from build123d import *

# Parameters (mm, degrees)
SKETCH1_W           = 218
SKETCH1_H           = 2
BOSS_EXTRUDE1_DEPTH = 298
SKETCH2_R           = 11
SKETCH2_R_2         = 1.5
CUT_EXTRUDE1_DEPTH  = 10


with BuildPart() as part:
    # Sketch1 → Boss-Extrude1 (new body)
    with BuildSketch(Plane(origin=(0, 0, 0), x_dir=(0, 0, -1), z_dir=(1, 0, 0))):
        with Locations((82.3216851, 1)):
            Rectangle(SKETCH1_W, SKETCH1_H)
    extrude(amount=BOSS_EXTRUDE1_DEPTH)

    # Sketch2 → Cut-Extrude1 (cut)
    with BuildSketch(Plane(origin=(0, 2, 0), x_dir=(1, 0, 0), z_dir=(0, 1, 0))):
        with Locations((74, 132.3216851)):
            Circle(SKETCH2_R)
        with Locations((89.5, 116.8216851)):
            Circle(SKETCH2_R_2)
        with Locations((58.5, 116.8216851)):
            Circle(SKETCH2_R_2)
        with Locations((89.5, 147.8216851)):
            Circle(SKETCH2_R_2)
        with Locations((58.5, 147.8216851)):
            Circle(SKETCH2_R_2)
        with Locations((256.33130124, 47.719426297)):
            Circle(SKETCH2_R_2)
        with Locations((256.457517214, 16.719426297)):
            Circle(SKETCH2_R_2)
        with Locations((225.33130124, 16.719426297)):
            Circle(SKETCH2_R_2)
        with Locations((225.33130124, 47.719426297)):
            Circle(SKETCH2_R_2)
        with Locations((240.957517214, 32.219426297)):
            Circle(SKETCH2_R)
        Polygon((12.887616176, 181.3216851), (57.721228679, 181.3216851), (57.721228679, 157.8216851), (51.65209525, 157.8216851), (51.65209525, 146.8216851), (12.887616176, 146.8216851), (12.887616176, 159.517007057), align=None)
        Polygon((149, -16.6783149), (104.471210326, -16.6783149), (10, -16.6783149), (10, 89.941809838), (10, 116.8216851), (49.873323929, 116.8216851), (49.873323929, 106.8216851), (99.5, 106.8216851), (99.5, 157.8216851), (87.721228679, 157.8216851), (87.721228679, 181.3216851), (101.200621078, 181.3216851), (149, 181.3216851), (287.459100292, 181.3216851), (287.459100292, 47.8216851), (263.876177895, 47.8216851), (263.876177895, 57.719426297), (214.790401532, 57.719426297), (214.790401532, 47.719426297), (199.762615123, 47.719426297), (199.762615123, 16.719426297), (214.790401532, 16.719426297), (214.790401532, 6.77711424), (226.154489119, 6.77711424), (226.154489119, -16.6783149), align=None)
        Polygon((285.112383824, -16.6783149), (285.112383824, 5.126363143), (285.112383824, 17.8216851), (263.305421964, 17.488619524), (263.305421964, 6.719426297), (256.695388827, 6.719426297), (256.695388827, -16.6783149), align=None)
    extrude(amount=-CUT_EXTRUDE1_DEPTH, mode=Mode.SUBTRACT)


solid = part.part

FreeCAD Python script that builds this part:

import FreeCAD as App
import Part
import Sketcher

V = App.Vector


def add_polygon(sketch, points):
    """Adds a closed chain of lines whose ends are joined by coincident constraints."""
    first, n = sketch.GeometryCount, len(points)
    for a, b in zip(points, points[1:] + points[:1]):
        sketch.addGeometry(Part.LineSegment(App.Vector(*a, 0), App.Vector(*b, 0)), False)
    for i in range(n):
        sketch.addConstraint(Sketcher.Constraint("Coincident", first + i, 2, first + (i + 1) % n, 1))

doc = App.newDocument("Part")
body = doc.addObject("PartDesign::Body", "Body")

# Sketch on YZ plane
sketch1 = doc.addObject("Sketcher::SketchObject", "Sketch")
body.addObject(sketch1)
sketch1.AttachmentSupport = (doc.YZ_Plane, [""])
sketch1.MapMode = "FlatFace"
add_polygon(sketch1, [(2, 26.7), (0, 26.7), (0, -191.3), (2, -191.3)])  # lines 0-3
sketch1.addConstraint([
    Sketcher.Constraint("Horizontal", 0),
    Sketcher.Constraint("Vertical", 1),
    Sketcher.Constraint("Horizontal", 2),
    Sketcher.Constraint("Vertical", 3),
    Sketcher.Constraint("PointOnObject", 0, 2, -2),
    Sketcher.Constraint("DistanceX", 0, 2, 0, 1, 2.0),
    Sketcher.Constraint("DistanceY", 1, 2, 1, 1, 218.0),
    Sketcher.Constraint("DistanceY", -1, 1, 0, 2, 26.678315),
])
pad1 = doc.addObject("PartDesign::Pad", "Pad")
body.addObject(pad1)
pad1.Profile = sketch1
pad1.Length = 298

# Sketch on XZ plane
sketch2 = doc.addObject("Sketcher::SketchObject", "Sketch001")
body.addObject(sketch2)
sketch2.AttachmentSupport = (doc.XZ_Plane, [""])
sketch2.MapMode = "FlatFace"
sketch2.AttachmentOffset = App.Placement(V(0, 0, -2), App.Rotation())
sketch2.addGeometry(Part.Circle(V(74, -132.3, 0), V(0, 0, 1), 11), False)  # 0
sketch2.addGeometry(Part.Circle(V(89.5, -116.8, 0), V(0, 0, 1), 1.5), False)  # 1
sketch2.addGeometry(Part.Circle(V(58.5, -116.8, 0), V(0, 0, 1), 1.5), False)  # 2
sketch2.addGeometry(Part.Circle(V(89.5, -147.8, 0), V(0, 0, 1), 1.5), False)  # 3
sketch2.addGeometry(Part.Circle(V(58.5, -147.8, 0), V(0, 0, 1), 1.5), False)  # 4
sketch2.addGeometry(Part.Circle(V(256.3, -47.7, 0), V(0, 0, 1), 1.5), False)  # 5
sketch2.addGeometry(Part.Circle(V(256.5, -16.7, 0), V(0, 0, 1), 1.5), False)  # 6
sketch2.addGeometry(Part.Circle(V(225.3, -16.7, 0), V(0, 0, 1), 1.5), False)  # 7
sketch2.addGeometry(Part.Circle(V(225.3, -47.7, 0), V(0, 0, 1), 1.5), False)  # 8
sketch2.addGeometry(Part.Circle(V(241, -32.2, 0), V(0, 0, 1), 11), False)  # 9
add_polygon(sketch2, [(57.7, -181.3), (12.9, -181.3), (12.9, -146.8), (51.7, -146.8), (51.7, -157.8), (57.7, -157.8)])  # lines 10-15
add_polygon(sketch2, [(10, 16.7), (226.2, 16.7), (226.2, -6.8), (214.8, -6.8), (214.8, -16.7), (199.8, -16.7), (199.8, -47.7), (214.8, -47.7), (214.8, -57.7), (263.9, -57.7), (263.9, -47.8), (287.5, -47.8), (287.5, -181.3), (87.7, -181.3), (87.7, -157.8), (99.5, -157.8), (99.5, -106.8), (49.9, -106.8), (49.9, -116.8), (10, -116.8)])  # lines 16-35
add_polygon(sketch2, [(285.1, 16.7), (285.1, -17.8), (263.3, -17.5), (263.3, -6.7), (256.7, -6.7), (256.7, 16.7)])  # lines 36-41
sketch2.addConstraint([
    Sketcher.Constraint("Horizontal", 10),
    Sketcher.Constraint("Vertical", 11),
    Sketcher.Constraint("Horizontal", 12),
    Sketcher.Constraint("Vertical", 13),
    Sketcher.Constraint("Horizontal", 14),
    Sketcher.Constraint("Vertical", 15),
    Sketcher.Constraint("Horizontal", 16),
    Sketcher.Constraint("Vertical", 17),
    Sketcher.Constraint("Horizontal", 18),
    Sketcher.Constraint("Vertical", 19),
    Sketcher.Constraint("Horizontal", 20),
    Sketcher.Constraint("Vertical", 21),
    Sketcher.Constraint("Horizontal", 22),
    Sketcher.Constraint("Vertical", 23),
    Sketcher.Constraint("Horizontal", 24),
    Sketcher.Constraint("Vertical", 25),
    Sketcher.Constraint("Horizontal", 26),
    Sketcher.Constraint("Vertical", 27),
    Sketcher.Constraint("Horizontal", 28),
    Sketcher.Constraint("Vertical", 29),
    Sketcher.Constraint("Horizontal", 30),
    Sketcher.Constraint("Vertical", 31),
    Sketcher.Constraint("Horizontal", 32),
    Sketcher.Constraint("Vertical", 33),
    Sketcher.Constraint("Horizontal", 34),
    Sketcher.Constraint("Vertical", 35),
    Sketcher.Constraint("Vertical", 36),
    Sketcher.Constraint("Vertical", 38),
    Sketcher.Constraint("Horizontal", 39),
    Sketcher.Constraint("Vertical", 40),
    Sketcher.Constraint("Horizontal", 41),
    Sketcher.Constraint("Equal", 1, 2),
    Sketcher.Constraint("Equal", 2, 3),
    Sketcher.Constraint("Equal", 3, 4),
    Sketcher.Constraint("Equal", 4, 5),
    Sketcher.Constraint("Equal", 5, 6),
    Sketcher.Constraint("Equal", 6, 7),
    Sketcher.Constraint("Equal", 7, 8),
    Sketcher.Constraint("Equal", 0, 9),
    Sketcher.Constraint("Horizontal", 1, 3, 2, 3),
    Sketcher.Constraint("Horizontal", 3, 3, 4, 3),
    Sketcher.Constraint("Horizontal", 6, 3, 7, 3),
    Sketcher.Constraint("Horizontal", 5, 3, 8, 3),
    Sketcher.Constraint("Horizontal", 7, 3, 19, 2),
    Sketcher.Constraint("Horizontal", 8, 3, 21, 2),
    Sketcher.Constraint("Horizontal", 15, 2, 27, 2),
    Sketcher.Constraint("Horizontal", 14, 2, 29, 2),
    Sketcher.Constraint("Horizontal", 2, 3, 33, 2),
    Sketcher.Constraint("Horizontal", 35, 2, 40, 2),
    Sketcher.Constraint("Vertical", 1, 3, 3, 3),
    Sketcher.Constraint("Vertical", 2, 3, 4, 3),
    Sketcher.Constraint("Vertical", 7, 3, 8, 3),
    Sketcher.Constraint("Vertical", 19, 2, 22, 2),
    Sketcher.Constraint("Equal", 23, 33),
    Sketcher.Constraint("Equal", 27, 35),
    Sketcher.Constraint("Equal", 11, 36),
    Sketcher.Constraint("Diameter", 0, 22.0),
    Sketcher.Constraint("Diameter", 1, 3.0),
    Sketcher.Constraint("DistanceY", 13, 2, 13, 1, 11.0),
    Sketcher.Constraint("DistanceY", 21, 2, 21, 1, 31.0),
    Sketcher.Constraint("DistanceY", 23, 2, 23, 1, 10.0),
    Sketcher.Constraint("DistanceY", 31, 1, 31, 2, 51.0),
    Sketcher.Constraint("DistanceY", 11, 1, 11, 2, 34.5),
    Sketcher.Constraint("DistanceY", 27, 2, 27, 1, 133.5),
    Sketcher.Constraint("DistanceX", -1, 1, 0, 3, 74.0),
    Sketcher.Constraint("DistanceX", -1, 1, 34, 2, 10.0),
    Sketcher.Constraint("DistanceX", 2, 3, 1, 3, 31.0),
    Sketcher.Constraint("DistanceY", 3, 3, 1, 3, 31.0),
    Sketcher.Constraint("DistanceX", 7, 3, 5, 3, 31.0),
    Sketcher.Constraint("DistanceY", 10, 2, 0, 3, 49.0),
    Sketcher.Constraint("DistanceX", 15, 2, 28, 2, 30.0),
    Sketcher.Constraint("DistanceX", 3, 3, 30, 2, 10.0),
    Sketcher.Constraint("DistanceY", 6, 3, 38, 2, 10.0),
    Sketcher.Constraint("DistanceX", -1, 1, 1, 3, 89.5),
    Sketcher.Constraint("DistanceY", 5, 3, 9, 3, 15.5),
    Sketcher.Constraint("DistanceX", 9, 3, 6, 3, 15.5),
    Sketcher.Constraint("DistanceX", 12, 1, 12, 2, 38.764479),
    Sketcher.Constraint("DistanceX", 16, 1, 16, 2, 216.154489),
    Sketcher.Constraint("DistanceX", 28, 2, 28, 1, 199.737872),
    Sketcher.Constraint("DistanceX", 30, 1, 30, 2, 11.778771),
    Sketcher.Constraint("DistanceY", 17, 2, 17, 1, 23.455429),
    Sketcher.Constraint("DistanceY", 25, 1, 25, 2, 9.897741),
    Sketcher.Constraint("DistanceX", -1, 1, 5, 3, 256.331301),
    Sketcher.Constraint("DistanceX", -1, 1, 18, 2, 214.790402),
    Sketcher.Constraint("DistanceX", 16, 2, 40, 2, 30.5409),
    Sketcher.Constraint("DistanceX", 10, 2, 10, 1, 44.833613),
    Sketcher.Constraint("DistanceX", 20, 2, 20, 1, 15.027786),
    Sketcher.Constraint("DistanceX", 24, 1, 24, 2, 49.085776),
    Sketcher.Constraint("DistanceX", 32, 2, 32, 1, 49.626676),
    Sketcher.Constraint("DistanceX", 39, 2, 39, 1, 6.610033),
    Sketcher.Constraint("DistanceX", 41, 1, 41, 2, 28.416995),
    Sketcher.Constraint("DistanceY", 38, 1, 38, 2, 10.769193),
    Sketcher.Constraint("DistanceY", 37, 2, -1, 1, 17.48862),
    Sketcher.Constraint("DistanceX", 16, 2, 6, 3, 30.303028),
])
pocket1 = doc.addObject("PartDesign::Pocket", "Pocket")
body.addObject(pocket1)
pocket1.Profile = sketch2
pocket1.Length = 10
pocket1.Reversed = True

doc.recompute()
